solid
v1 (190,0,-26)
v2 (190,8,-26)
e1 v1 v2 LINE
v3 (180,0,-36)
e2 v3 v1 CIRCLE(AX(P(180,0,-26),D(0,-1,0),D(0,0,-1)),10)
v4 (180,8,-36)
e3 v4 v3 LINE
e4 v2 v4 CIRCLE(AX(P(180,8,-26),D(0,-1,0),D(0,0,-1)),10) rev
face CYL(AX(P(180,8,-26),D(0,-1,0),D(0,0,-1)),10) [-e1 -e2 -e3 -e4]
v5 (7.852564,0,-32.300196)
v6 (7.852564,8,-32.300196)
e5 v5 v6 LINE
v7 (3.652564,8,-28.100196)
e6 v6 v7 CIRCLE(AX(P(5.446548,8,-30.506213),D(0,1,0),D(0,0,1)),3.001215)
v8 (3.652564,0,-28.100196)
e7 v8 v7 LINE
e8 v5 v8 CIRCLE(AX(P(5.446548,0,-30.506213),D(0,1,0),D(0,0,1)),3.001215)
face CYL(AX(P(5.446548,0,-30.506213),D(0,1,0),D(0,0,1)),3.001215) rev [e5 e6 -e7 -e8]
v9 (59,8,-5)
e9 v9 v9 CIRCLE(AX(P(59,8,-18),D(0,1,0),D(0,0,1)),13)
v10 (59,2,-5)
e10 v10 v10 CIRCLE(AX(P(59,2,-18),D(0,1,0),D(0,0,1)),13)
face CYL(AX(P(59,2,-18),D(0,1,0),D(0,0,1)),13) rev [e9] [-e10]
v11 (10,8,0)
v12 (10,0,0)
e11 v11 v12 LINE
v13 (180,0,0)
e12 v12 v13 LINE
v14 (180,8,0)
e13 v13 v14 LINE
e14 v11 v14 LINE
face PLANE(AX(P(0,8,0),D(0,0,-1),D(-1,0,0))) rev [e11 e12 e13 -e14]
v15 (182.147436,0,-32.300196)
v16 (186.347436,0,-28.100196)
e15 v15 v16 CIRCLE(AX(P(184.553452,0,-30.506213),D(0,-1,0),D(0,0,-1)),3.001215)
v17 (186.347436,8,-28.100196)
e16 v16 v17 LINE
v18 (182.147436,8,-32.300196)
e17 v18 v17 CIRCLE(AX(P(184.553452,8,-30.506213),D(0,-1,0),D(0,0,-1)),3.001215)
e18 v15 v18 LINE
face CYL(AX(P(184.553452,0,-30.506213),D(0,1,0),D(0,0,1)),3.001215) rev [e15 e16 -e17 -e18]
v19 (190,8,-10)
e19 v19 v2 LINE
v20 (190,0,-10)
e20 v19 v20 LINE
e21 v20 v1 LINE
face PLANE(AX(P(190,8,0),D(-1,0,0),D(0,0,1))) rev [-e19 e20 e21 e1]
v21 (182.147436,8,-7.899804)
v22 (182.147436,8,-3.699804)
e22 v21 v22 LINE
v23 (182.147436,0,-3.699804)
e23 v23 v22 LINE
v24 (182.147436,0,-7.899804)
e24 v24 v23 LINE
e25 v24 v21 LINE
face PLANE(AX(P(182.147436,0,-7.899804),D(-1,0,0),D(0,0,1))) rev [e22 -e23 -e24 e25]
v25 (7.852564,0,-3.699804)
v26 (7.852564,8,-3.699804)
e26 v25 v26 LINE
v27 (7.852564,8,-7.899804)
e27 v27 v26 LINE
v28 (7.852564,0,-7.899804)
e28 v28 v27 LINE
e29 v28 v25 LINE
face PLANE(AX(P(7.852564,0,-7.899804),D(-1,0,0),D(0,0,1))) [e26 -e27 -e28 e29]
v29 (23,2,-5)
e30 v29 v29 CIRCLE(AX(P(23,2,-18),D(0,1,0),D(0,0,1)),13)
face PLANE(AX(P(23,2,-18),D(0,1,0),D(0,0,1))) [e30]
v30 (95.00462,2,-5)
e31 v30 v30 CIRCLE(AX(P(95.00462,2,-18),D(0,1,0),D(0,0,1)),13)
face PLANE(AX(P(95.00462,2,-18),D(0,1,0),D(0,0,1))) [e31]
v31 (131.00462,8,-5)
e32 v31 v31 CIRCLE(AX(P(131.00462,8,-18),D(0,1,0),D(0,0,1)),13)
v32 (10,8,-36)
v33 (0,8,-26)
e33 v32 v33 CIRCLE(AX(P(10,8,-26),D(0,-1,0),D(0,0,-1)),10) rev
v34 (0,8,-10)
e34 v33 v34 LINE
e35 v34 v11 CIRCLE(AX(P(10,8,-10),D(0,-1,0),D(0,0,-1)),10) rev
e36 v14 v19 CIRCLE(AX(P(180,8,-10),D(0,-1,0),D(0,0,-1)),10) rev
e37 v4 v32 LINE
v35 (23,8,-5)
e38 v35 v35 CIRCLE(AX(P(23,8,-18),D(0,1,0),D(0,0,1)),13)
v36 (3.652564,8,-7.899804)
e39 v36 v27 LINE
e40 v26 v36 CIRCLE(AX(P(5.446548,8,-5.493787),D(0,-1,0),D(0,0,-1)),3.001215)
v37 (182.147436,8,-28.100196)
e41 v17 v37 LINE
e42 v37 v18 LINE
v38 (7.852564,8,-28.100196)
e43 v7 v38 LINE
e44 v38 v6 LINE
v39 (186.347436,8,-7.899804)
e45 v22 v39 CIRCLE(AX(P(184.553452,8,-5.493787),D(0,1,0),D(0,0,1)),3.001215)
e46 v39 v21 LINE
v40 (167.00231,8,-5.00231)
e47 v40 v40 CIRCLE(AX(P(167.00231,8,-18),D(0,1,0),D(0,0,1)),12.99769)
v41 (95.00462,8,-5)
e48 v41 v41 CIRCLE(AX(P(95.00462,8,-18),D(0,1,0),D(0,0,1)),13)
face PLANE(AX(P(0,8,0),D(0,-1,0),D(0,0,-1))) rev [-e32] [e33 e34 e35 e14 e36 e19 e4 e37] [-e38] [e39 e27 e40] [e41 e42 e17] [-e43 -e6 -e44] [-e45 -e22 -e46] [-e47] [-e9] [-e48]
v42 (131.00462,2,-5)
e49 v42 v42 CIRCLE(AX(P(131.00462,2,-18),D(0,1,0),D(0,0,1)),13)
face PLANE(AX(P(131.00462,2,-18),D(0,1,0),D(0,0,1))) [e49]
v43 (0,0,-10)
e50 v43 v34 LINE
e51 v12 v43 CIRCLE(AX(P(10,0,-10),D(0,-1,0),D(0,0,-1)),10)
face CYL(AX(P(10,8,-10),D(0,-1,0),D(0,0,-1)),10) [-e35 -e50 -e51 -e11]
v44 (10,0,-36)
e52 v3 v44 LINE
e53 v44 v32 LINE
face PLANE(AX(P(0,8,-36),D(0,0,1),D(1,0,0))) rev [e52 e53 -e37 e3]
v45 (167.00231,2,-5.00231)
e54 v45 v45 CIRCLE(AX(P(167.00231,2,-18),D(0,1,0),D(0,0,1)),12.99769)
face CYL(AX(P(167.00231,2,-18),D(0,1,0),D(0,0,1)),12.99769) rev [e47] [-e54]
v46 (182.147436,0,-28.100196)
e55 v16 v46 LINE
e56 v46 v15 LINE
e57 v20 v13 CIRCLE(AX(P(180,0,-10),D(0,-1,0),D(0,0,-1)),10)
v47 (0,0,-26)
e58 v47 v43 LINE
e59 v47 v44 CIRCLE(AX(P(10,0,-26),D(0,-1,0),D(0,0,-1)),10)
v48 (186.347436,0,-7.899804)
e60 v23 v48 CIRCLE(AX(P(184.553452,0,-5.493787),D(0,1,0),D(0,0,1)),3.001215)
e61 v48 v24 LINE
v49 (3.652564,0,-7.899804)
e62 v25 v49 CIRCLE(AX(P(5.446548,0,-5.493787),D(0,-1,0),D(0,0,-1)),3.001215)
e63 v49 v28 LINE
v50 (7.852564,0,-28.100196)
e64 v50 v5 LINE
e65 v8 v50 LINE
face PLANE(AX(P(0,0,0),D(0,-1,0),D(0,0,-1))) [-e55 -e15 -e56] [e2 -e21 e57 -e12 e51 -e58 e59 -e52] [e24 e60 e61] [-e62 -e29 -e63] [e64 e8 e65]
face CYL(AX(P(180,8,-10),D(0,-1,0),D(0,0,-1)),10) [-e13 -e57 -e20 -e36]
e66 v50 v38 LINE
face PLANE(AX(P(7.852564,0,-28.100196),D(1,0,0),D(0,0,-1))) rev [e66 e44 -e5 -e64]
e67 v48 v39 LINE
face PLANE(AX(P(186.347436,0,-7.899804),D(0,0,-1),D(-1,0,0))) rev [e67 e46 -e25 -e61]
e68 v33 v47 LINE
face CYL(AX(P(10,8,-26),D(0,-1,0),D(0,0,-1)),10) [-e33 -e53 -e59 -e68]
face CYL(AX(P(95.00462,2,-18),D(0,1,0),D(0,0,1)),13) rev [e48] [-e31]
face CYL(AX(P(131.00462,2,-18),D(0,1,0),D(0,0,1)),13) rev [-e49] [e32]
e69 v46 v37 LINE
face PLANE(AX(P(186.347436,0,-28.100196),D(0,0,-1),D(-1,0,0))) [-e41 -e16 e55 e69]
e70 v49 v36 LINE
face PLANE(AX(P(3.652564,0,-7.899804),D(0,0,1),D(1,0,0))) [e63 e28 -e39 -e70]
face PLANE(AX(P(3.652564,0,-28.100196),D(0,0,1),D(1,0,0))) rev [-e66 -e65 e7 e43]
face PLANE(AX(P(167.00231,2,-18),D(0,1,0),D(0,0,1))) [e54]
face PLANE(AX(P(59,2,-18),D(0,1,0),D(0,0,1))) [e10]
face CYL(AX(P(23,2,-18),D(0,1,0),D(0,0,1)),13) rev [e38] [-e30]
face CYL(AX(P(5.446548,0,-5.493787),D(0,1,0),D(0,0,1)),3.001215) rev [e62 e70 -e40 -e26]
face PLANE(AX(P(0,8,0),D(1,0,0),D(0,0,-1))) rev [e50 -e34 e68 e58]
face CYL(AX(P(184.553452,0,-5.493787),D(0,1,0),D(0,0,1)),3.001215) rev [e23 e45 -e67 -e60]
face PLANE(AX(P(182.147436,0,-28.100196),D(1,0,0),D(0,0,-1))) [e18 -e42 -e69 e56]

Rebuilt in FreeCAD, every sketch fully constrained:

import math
import FreeCAD as App
import Part
import Sketcher
from FreeCAD import Vector
Q = App.Units.Quantity


def edges_at(feature, points):
    """Names of the edges that pass closest to the given points."""
    edges = feature.Shape.Edges
    near = lambda p: min(range(len(edges)), key=lambda i: edges[i].distToShape(Part.Vertex(*p))[0])
    return sorted({f"Edge{near(p) + 1}" for p in points})

doc = App.newDocument("Part")
body = doc.addObject("PartDesign::Body", "Body")

sketch1 = doc.addObject("Sketcher::SketchObject", "Sketch")
body.addObject(sketch1)
sketch1.AttachmentSupport = (doc.XZ_Plane, [""])
sketch1.MapMode = "FlatFace"
sketch1.addGeometry([
    Part.LineSegment(Vector(0, -36, 0), Vector(0, 0, 0)),
    Part.LineSegment(Vector(0, 0, 0), Vector(190, 0, 0)),
    Part.LineSegment(Vector(190, 0, 0), Vector(190, -36, 0)),
    Part.LineSegment(Vector(190, -36, 0), Vector(0, -36, 0)),
], False)
sketch1.addConstraint([
    Sketcher.Constraint("Coincident", 0, 2, 1, 1),
    Sketcher.Constraint("Coincident", 1, 2, 2, 1),
    Sketcher.Constraint("Coincident", 2, 2, 3, 1),
    Sketcher.Constraint("Coincident", 3, 2, 0, 1),
    Sketcher.Constraint("Vertical", 0),
    Sketcher.Constraint("Horizontal", 1),
    Sketcher.Constraint("Vertical", 2),
    Sketcher.Constraint("Horizontal", 3),
    Sketcher.Constraint("Coincident", 0, 2, -1, 1),
    Sketcher.Constraint("DistanceX", 1, 1, 1, 2, Q("190 mm")),
    Sketcher.Constraint("DistanceY", 0, 1, 0, 2, Q("36 mm")),
])
pad1 = doc.addObject("PartDesign::Pad", "Pad")
body.addObject(pad1)
pad1.Profile = sketch1
pad1.Length = 8
pad1.Reversed = True

sketch2 = doc.addObject("Sketcher::SketchObject", "Sketch001")
body.addObject(sketch2)
sketch2.AttachmentSupport = (doc.XZ_Plane, [""])
sketch2.MapMode = "FlatFace"
sketch2.AttachmentOffset = App.Placement(Vector(0, 0, -8), App.Rotation())
sketch2.addGeometry([
    Part.Circle(Vector(23, -18, 0), Vector(0, 0, 1), 13),
    Part.Circle(Vector(59, -18, 0), Vector(0, 0, 1), 13),
    Part.Circle(Vector(95.00462, -18, 0), Vector(0, 0, 1), 13),
    Part.Circle(Vector(131.00462, -18, 0), Vector(0, 0, 1), 13),
    Part.Circle(Vector(167.00231, -18, 0), Vector(0, 0, 1), 12.99769),
], False)
sketch2.addConstraint([
    Sketcher.Constraint("Equal", 0, 1),
    Sketcher.Constraint("Equal", 1, 2),
    Sketcher.Constraint("Equal", 2, 3),
    Sketcher.Constraint("Horizontal", 0, 3, 1, 3),
    Sketcher.Constraint("Horizontal", 1, 3, 2, 3),
    Sketcher.Constraint("Horizontal", 2, 3, 3, 3),
    Sketcher.Constraint("Horizontal", 3, 3, 4, 3),
    Sketcher.Constraint("Diameter", 0, Q("26 mm")),
    Sketcher.Constraint("DistanceX", -1, 1, 0, 3, Q("23 mm")),
    Sketcher.Constraint("DistanceY", 0, 3, -1, 1, Q("18 mm")),
    Sketcher.Constraint("DistanceX", -1, 1, 1, 3, Q("59 mm")),
    Sketcher.Constraint("DistanceX", 2, 3, 3, 3, Q("36 mm")),
    Sketcher.Constraint("Diameter", 4, Q("25.99538 mm")),
    Sketcher.Constraint("DistanceX", -1, 1, 2, 3, Q("95.00462 mm")),
    Sketcher.Constraint("DistanceX", -1, 1, 4, 3, Q("167.00231 mm")),
])
pocket1 = doc.addObject("PartDesign::Pocket", "Pocket")
body.addObject(pocket1)
pocket1.Profile = sketch2
pocket1.Length = 6
pocket1.Reversed = True
doc.recompute()

fillet = doc.addObject("PartDesign::Fillet", "Fillet")
body.addObject(fillet)
fillet.Base = (pocket1, edges_at(pocket1, [
    (0, 4, -36),
    (190, 4, -36),
    (190, 4, 0),
    (0, 4, 0),
]))
fillet.Radius = 10

sketch3 = doc.addObject("Sketcher::SketchObject", "Sketch002")
body.addObject(sketch3)
sketch3.AttachmentSupport = (doc.XZ_Plane, [""])
sketch3.MapMode = "FlatFace"
sketch3.AttachmentOffset = App.Placement(Vector(0, 0, -8), App.Rotation())
sketch3.addGeometry([
    Part.LineSegment(Vector(7.852564, -7.899804, 0), Vector(3.652564, -7.899804, 0)),
    Part.ArcOfCircle(Part.Circle(Vector(5.446548, -5.493787, 0), Vector(0, 0, 1), 3.001215), math.radians(36.709095), math.radians(233.290905)),
    Part.LineSegment(Vector(7.852564, -3.699804, 0), Vector(7.852564, -7.899804, 0)),
    Part.LineSegment(Vector(7.852564, -28.100196, 0), Vector(7.852564, -32.300196, 0)),
    Part.ArcOfCircle(Part.Circle(Vector(5.446548, -30.506213, 0), Vector(0, 0, 1), 3.001215), math.radians(126.709095), math.radians(323.290905)),
    Part.LineSegment(Vector(3.652564, -28.100196, 0), Vector(7.852564, -28.100196, 0)),
    Part.LineSegment(Vector(182.147436, -7.899804, 0), Vector(182.147436, -3.699804, 0)),
    Part.ArcOfCircle(Part.Circle(Vector(184.553452, -5.493787, 0), Vector(0, 0, 1), 3.001215), math.radians(-53.290905), math.radians(143.290905)),
    Part.LineSegment(Vector(186.347436, -7.899804, 0), Vector(182.147436, -7.899804, 0)),
    Part.LineSegment(Vector(182.147436, -32.300196, 0), Vector(182.147436, -28.100196, 0)),
    Part.LineSegment(Vector(182.147436, -28.100196, 0), Vector(186.347436, -28.100196, 0)),
    Part.ArcOfCircle(Part.Circle(Vector(184.553452, -30.506213, 0), Vector(0, 0, 1), 3.001215), math.radians(-143.290905), math.radians(53.290905)),
], False)
sketch3.addConstraint([
    Sketcher.Constraint("Coincident", 0, 2, 1, 2),
    Sketcher.Constraint("Coincident", 1, 1, 2, 1),
    Sketcher.Constraint("Coincident", 2, 2, 0, 1),
    Sketcher.Constraint("Coincident", 3, 2, 4, 2),
    Sketcher.Constraint("Coincident", 4, 1, 5, 1),
    Sketcher.Constraint("Coincident", 5, 2, 3, 1),
    Sketcher.Constraint("Coincident", 6, 2, 7, 2),
    Sketcher.Constraint("Coincident", 7, 1, 8, 1),
    Sketcher.Constraint("Coincident", 8, 2, 6, 1),
    Sketcher.Constraint("Coincident", 9, 2, 10, 1),
    Sketcher.Constraint("Coincident", 10, 2, 11, 2),
    Sketcher.Constraint("Coincident", 11, 1, 9, 1),
    Sketcher.Constraint("Horizontal", 0),
    Sketcher.Constraint("Vertical", 2),
    Sketcher.Constraint("Vertical", 3),
    Sketcher.Constraint("Horizontal", 5),
    Sketcher.Constraint("Vertical", 6),
    Sketcher.Constraint("Horizontal", 8),
    Sketcher.Constraint("Vertical", 9),
    Sketcher.Constraint("Horizontal", 10),
    Sketcher.Constraint("Equal", 1, 4),
    Sketcher.Constraint("Equal", 4, 7),
    Sketcher.Constraint("Equal", 7, 11),
    Sketcher.Constraint("Horizontal", 1, 3, 7, 3),
    Sketcher.Constraint("Horizontal", 4, 3, 11, 3),
    Sketcher.Constraint("Horizontal", 1, 1, 6, 2),
    Sketcher.Constraint("Horizontal", 2, 2, 7, 1),
    Sketcher.Constraint("Horizontal", 5, 2, 9, 2),
    Sketcher.Constraint("Horizontal", 3, 2, 11, 1),
    Sketcher.Constraint("Vertical", 1, 3, 4, 3),
    Sketcher.Constraint("Vertical", 7, 3, 11, 3),
    Sketcher.Constraint("Vertical", 2, 2, 3, 2),
    Sketcher.Constraint("Vertical", 0, 2, 4, 1),
    Sketcher.Constraint("Equal", 10, 2),
    Sketcher.Constraint("DistanceX", 0, 2, 0, 1, Q("4.2 mm")),
    Sketcher.Constraint("Radius", 1, Q("3.001215 mm")),
    Sketcher.Constraint("DistanceX", -1, 1, 1, 3, Q("5.446548 mm")),
    Sketcher.Constraint("DistanceX", -1, 1, 7, 3, Q("184.553452 mm")),
    Sketcher.Constraint("DistanceY", 4, 3, 0, 2, Q("22.606409 mm")),
    Sketcher.Constraint("DistanceY", 1, 3, -1, 1, Q("5.493787 mm")),
])
pocket2 = doc.addObject("PartDesign::Pocket", "Pocket001")
body.addObject(pocket2)
pocket2.Profile = sketch3
pocket2.Length = 8
pocket2.Reversed = True

doc.recompute()
